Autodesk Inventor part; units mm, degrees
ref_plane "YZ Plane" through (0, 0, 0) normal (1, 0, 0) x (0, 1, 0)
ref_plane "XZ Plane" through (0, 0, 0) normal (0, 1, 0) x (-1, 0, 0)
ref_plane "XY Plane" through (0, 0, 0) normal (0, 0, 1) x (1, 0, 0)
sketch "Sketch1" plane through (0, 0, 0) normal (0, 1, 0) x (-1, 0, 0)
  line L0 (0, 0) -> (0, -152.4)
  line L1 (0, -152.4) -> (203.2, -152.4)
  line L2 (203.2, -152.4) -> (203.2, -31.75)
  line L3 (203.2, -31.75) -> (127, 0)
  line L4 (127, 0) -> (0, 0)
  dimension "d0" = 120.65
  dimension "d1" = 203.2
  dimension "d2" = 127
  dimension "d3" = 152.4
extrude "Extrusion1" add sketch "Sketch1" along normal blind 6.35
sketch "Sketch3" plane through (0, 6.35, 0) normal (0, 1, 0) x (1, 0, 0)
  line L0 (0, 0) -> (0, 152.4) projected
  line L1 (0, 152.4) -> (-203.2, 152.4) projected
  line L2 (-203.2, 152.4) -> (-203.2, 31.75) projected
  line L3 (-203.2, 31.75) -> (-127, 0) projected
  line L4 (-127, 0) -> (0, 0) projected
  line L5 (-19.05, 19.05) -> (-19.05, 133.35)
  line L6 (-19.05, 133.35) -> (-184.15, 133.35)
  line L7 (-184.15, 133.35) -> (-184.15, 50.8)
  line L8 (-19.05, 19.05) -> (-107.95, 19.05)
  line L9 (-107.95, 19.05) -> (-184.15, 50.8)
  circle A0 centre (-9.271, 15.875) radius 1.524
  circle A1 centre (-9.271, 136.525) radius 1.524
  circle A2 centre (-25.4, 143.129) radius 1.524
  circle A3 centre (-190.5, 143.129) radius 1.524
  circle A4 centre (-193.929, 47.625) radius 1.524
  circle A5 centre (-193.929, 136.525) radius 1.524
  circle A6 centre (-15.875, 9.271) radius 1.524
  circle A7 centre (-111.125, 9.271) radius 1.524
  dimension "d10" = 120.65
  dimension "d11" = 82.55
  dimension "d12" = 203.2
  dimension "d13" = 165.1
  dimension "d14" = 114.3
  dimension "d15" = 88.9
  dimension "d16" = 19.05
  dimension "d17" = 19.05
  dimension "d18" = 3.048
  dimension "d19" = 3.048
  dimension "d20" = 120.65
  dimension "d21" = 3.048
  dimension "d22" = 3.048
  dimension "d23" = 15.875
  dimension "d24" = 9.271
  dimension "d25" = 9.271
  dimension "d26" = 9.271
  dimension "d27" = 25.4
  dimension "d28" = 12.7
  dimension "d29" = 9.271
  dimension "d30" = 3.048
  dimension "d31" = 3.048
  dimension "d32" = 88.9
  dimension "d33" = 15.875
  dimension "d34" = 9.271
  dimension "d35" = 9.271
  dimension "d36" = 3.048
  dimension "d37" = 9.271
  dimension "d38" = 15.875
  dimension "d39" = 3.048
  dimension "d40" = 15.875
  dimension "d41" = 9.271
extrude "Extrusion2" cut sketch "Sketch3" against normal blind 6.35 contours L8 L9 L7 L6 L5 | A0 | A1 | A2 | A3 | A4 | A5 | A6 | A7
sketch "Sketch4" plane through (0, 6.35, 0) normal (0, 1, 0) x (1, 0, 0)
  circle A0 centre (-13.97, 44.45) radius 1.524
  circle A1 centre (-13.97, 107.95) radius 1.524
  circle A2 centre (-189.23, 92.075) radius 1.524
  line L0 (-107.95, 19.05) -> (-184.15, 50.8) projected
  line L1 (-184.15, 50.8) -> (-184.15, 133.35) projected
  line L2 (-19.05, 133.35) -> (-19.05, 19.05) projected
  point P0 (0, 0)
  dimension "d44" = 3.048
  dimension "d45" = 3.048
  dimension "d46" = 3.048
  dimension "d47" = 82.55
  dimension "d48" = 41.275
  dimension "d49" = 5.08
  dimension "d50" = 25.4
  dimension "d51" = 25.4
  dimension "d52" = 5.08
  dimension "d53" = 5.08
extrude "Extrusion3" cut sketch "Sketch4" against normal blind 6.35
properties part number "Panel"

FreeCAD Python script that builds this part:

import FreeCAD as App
import Part
import Sketcher

V = App.Vector
Q = App.Units.Quantity


def add_polygon(sketch, points):
    """Adds a closed chain of lines whose ends are joined by coincident constraints."""
    first, n = sketch.GeometryCount, len(points)
    for a, b in zip(points, points[1:] + points[:1]):
        sketch.addGeometry(Part.LineSegment(App.Vector(*a, 0), App.Vector(*b, 0)), False)
    for i in range(n):
        sketch.addConstraint(Sketcher.Constraint("Coincident", first + i, 2, first + (i + 1) % n, 1))

doc = App.newDocument("Part")
body = doc.addObject("PartDesign::Body", "Body")

# Sketch on XZ plane
sketch1 = doc.addObject("Sketcher::SketchObject", "Sketch")
body.addObject(sketch1)
sketch1.AttachmentSupport = (doc.XZ_Plane, [""])
sketch1.MapMode = "FlatFace"
add_polygon(sketch1, [(-127, 0), (0, 0), (0, -152), (-203, -152), (-203, -32)])  # lines 0-4
sketch1.addConstraint([
    Sketcher.Constraint("Horizontal", 0),
    Sketcher.Constraint("Vertical", 1),
    Sketcher.Constraint("Horizontal", 2),
    Sketcher.Constraint("Vertical", 3),
    Sketcher.Constraint("Coincident", 0, 2, -1, 1),
    Sketcher.Constraint("DistanceX", 0, 1, 0, 2, Q("5 in")),
    Sketcher.Constraint("DistanceX", 2, 2, 2, 1, Q("8 in")),
    Sketcher.Constraint("DistanceY", 1, 2, 1, 1, Q("6 in")),
    Sketcher.Constraint("DistanceY", 3, 1, 3, 2, Q("4.75 in")),
])
pad1 = doc.addObject("PartDesign::Pad", "Pad")
body.addObject(pad1)
pad1.Profile = sketch1
pad1.Length = Q("0.25 in")
pad1.Reversed = True

# Sketch on XZ plane
sketch2 = doc.addObject("Sketcher::SketchObject", "Sketch001")
body.addObject(sketch2)
sketch2.AttachmentSupport = (doc.XZ_Plane, [""])
sketch2.MapMode = "FlatFace"
sketch2.AttachmentOffset = App.Placement(V(0, 0, -0.25 * 25.4), App.Rotation())
add_polygon(sketch2, [(-108, -19.1), (-19.1, -19.1), (-19.1, -133.3), (-184.2, -133.3), (-184.2, -50.8)])  # lines 0-4
sketch2.addGeometry(Part.Circle(V(-9.3, -15.9, 0), V(0, 0, 1), 1.5), False)  # 5
sketch2.addGeometry(Part.Circle(V(-9.3, -136.5, 0), V(0, 0, 1), 1.5), False)  # 6
sketch2.addGeometry(Part.Circle(V(-25.4, -143.1, 0), V(0, 0, 1), 1.5), False)  # 7
sketch2.addGeometry(Part.Circle(V(-190.5, -143.1, 0), V(0, 0, 1), 1.5), False)  # 8
sketch2.addGeometry(Part.Circle(V(-193.9, -47.6, 0), V(0, 0, 1), 1.5), False)  # 9
sketch2.addGeometry(Part.Circle(V(-193.9, -136.5, 0), V(0, 0, 1), 1.5), False)  # 10
sketch2.addGeometry(Part.Circle(V(-15.9, -9.3, 0), V(0, 0, 1), 1.5), False)  # 11
sketch2.addGeometry(Part.Circle(V(-111.1, -9.3, 0), V(0, 0, 1), 1.5), False)  # 12
sketch2.addConstraint([
    Sketcher.Constraint("Horizontal", 0),
    Sketcher.Constraint("Vertical", 1),
    Sketcher.Constraint("Horizontal", 2),
    Sketcher.Constraint("Vertical", 3),
    Sketcher.Constraint("Equal", 5, 6),
    Sketcher.Constraint("Equal", 6, 7),
    Sketcher.Constraint("Equal", 7, 8),
    Sketcher.Constraint("Equal", 8, 9),
    Sketcher.Constraint("Equal", 9, 10),
    Sketcher.Constraint("Equal", 10, 11),
    Sketcher.Constraint("Equal", 11, 12),
    Sketcher.Constraint("Horizontal", 7, 3, 8, 3),
    Sketcher.Constraint("Horizontal", 6, 3, 10, 3),
    Sketcher.Constraint("Horizontal", 11, 3, 12, 3),
    Sketcher.Constraint("Vertical", 5, 3, 6, 3),
    Sketcher.Constraint("Vertical", 9, 3, 10, 3),
    Sketcher.Constraint("Diameter", 5, Q("0.12 in")),
    Sketcher.Constraint("DistanceX", 0, 1, 0, 2, Q("3.5 in")),
    Sketcher.Constraint("DistanceX", 2, 2, 2, 1, Q("6.5 in")),
    Sketcher.Constraint("DistanceY", 1, 2, 1, 1, Q("4.5 in")),
    Sketcher.Constraint("DistanceX", 7, 3, -1, 1, Q("1 in")),
    Sketcher.Constraint("DistanceY", 3, 1, 3, 2, Q("3.25 in")),
    Sketcher.Constraint("DistanceX", 8, 3, 7, 3, Q("6.5 in")),
    Sketcher.Constraint("DistanceY", 6, 3, 9, 3, Q("3.5 in")),
    Sketcher.Constraint("DistanceX", 0, 2, -1, 1, Q("0.75 in")),
    Sketcher.Constraint("DistanceY", 0, 2, -1, 1, Q("0.75 in")),
    Sketcher.Constraint("DistanceY", 6, 3, 5, 3, Q("4.75 in")),
    Sketcher.Constraint("DistanceX", 5, 3, -1, 1, Q("0.365 in")),
    Sketcher.Constraint("DistanceY", 5, 3, -1, 1, Q("0.625 in")),
    Sketcher.Constraint("DistanceX", 11, 3, -1, 1, Q("0.625 in")),
    Sketcher.Constraint("DistanceY", 11, 3, -1, 1, Q("0.365 in")),
    Sketcher.Constraint("DistanceY", 7, 3, 6, 3, Q("0.26 in")),
    Sketcher.Constraint("DistanceX", 9, 3, 5, 3, Q("7.27 in")),
    Sketcher.Constraint("DistanceX", 9, 3, 12, 3, Q("3.26 in")),
])
pocket1 = doc.addObject("PartDesign::Pocket", "Pocket")
body.addObject(pocket1)
pocket1.Profile = sketch2
pocket1.Length = Q("0.25 in")
pocket1.Reversed = True

# Sketch on XZ plane
sketch3 = doc.addObject("Sketcher::SketchObject", "Sketch002")
body.addObject(sketch3)
sketch3.AttachmentSupport = (doc.XZ_Plane, [""])
sketch3.MapMode = "FlatFace"
sketch3.AttachmentOffset = App.Placement(V(0, 0, -0.25 * 25.4), App.Rotation())
sketch3.addGeometry([
    Part.Circle(V(-14, -44.5, 0), V(0, 0, 1), 1.5),
    Part.Circle(V(-14, -108, 0), V(0, 0, 1), 1.5),
    Part.Circle(V(-189.2, -92.1, 0), V(0, 0, 1), 1.5),
], False)
sketch3.addConstraint([
    Sketcher.Constraint("Equal", 0, 1),
    Sketcher.Constraint("Equal", 1, 2),
    Sketcher.Constraint("Vertical", 0, 3, 1, 3),
    Sketcher.Constraint("Diameter", 0, Q("0.12 in")),
    Sketcher.Constraint("DistanceY", 1, 3, 0, 3, Q("2.5 in")),
    Sketcher.Constraint("DistanceX", 2, 3, 1, 3, Q("6.9 in")),
    Sketcher.Constraint("DistanceX", 0, 3, -1, 1, Q("0.55 in")),
    Sketcher.Constraint("DistanceY", 0, 3, -1, 1, Q("1.75 in")),
    Sketcher.Constraint("DistanceY", 2, 3, -1, 1, Q("3.625 in")),
])
pocket2 = doc.addObject("PartDesign::Pocket", "Pocket001")
body.addObject(pocket2)
pocket2.Profile = sketch3
pocket2.Length = Q("0.25 in")
pocket2.Reversed = True

doc.recompute()
